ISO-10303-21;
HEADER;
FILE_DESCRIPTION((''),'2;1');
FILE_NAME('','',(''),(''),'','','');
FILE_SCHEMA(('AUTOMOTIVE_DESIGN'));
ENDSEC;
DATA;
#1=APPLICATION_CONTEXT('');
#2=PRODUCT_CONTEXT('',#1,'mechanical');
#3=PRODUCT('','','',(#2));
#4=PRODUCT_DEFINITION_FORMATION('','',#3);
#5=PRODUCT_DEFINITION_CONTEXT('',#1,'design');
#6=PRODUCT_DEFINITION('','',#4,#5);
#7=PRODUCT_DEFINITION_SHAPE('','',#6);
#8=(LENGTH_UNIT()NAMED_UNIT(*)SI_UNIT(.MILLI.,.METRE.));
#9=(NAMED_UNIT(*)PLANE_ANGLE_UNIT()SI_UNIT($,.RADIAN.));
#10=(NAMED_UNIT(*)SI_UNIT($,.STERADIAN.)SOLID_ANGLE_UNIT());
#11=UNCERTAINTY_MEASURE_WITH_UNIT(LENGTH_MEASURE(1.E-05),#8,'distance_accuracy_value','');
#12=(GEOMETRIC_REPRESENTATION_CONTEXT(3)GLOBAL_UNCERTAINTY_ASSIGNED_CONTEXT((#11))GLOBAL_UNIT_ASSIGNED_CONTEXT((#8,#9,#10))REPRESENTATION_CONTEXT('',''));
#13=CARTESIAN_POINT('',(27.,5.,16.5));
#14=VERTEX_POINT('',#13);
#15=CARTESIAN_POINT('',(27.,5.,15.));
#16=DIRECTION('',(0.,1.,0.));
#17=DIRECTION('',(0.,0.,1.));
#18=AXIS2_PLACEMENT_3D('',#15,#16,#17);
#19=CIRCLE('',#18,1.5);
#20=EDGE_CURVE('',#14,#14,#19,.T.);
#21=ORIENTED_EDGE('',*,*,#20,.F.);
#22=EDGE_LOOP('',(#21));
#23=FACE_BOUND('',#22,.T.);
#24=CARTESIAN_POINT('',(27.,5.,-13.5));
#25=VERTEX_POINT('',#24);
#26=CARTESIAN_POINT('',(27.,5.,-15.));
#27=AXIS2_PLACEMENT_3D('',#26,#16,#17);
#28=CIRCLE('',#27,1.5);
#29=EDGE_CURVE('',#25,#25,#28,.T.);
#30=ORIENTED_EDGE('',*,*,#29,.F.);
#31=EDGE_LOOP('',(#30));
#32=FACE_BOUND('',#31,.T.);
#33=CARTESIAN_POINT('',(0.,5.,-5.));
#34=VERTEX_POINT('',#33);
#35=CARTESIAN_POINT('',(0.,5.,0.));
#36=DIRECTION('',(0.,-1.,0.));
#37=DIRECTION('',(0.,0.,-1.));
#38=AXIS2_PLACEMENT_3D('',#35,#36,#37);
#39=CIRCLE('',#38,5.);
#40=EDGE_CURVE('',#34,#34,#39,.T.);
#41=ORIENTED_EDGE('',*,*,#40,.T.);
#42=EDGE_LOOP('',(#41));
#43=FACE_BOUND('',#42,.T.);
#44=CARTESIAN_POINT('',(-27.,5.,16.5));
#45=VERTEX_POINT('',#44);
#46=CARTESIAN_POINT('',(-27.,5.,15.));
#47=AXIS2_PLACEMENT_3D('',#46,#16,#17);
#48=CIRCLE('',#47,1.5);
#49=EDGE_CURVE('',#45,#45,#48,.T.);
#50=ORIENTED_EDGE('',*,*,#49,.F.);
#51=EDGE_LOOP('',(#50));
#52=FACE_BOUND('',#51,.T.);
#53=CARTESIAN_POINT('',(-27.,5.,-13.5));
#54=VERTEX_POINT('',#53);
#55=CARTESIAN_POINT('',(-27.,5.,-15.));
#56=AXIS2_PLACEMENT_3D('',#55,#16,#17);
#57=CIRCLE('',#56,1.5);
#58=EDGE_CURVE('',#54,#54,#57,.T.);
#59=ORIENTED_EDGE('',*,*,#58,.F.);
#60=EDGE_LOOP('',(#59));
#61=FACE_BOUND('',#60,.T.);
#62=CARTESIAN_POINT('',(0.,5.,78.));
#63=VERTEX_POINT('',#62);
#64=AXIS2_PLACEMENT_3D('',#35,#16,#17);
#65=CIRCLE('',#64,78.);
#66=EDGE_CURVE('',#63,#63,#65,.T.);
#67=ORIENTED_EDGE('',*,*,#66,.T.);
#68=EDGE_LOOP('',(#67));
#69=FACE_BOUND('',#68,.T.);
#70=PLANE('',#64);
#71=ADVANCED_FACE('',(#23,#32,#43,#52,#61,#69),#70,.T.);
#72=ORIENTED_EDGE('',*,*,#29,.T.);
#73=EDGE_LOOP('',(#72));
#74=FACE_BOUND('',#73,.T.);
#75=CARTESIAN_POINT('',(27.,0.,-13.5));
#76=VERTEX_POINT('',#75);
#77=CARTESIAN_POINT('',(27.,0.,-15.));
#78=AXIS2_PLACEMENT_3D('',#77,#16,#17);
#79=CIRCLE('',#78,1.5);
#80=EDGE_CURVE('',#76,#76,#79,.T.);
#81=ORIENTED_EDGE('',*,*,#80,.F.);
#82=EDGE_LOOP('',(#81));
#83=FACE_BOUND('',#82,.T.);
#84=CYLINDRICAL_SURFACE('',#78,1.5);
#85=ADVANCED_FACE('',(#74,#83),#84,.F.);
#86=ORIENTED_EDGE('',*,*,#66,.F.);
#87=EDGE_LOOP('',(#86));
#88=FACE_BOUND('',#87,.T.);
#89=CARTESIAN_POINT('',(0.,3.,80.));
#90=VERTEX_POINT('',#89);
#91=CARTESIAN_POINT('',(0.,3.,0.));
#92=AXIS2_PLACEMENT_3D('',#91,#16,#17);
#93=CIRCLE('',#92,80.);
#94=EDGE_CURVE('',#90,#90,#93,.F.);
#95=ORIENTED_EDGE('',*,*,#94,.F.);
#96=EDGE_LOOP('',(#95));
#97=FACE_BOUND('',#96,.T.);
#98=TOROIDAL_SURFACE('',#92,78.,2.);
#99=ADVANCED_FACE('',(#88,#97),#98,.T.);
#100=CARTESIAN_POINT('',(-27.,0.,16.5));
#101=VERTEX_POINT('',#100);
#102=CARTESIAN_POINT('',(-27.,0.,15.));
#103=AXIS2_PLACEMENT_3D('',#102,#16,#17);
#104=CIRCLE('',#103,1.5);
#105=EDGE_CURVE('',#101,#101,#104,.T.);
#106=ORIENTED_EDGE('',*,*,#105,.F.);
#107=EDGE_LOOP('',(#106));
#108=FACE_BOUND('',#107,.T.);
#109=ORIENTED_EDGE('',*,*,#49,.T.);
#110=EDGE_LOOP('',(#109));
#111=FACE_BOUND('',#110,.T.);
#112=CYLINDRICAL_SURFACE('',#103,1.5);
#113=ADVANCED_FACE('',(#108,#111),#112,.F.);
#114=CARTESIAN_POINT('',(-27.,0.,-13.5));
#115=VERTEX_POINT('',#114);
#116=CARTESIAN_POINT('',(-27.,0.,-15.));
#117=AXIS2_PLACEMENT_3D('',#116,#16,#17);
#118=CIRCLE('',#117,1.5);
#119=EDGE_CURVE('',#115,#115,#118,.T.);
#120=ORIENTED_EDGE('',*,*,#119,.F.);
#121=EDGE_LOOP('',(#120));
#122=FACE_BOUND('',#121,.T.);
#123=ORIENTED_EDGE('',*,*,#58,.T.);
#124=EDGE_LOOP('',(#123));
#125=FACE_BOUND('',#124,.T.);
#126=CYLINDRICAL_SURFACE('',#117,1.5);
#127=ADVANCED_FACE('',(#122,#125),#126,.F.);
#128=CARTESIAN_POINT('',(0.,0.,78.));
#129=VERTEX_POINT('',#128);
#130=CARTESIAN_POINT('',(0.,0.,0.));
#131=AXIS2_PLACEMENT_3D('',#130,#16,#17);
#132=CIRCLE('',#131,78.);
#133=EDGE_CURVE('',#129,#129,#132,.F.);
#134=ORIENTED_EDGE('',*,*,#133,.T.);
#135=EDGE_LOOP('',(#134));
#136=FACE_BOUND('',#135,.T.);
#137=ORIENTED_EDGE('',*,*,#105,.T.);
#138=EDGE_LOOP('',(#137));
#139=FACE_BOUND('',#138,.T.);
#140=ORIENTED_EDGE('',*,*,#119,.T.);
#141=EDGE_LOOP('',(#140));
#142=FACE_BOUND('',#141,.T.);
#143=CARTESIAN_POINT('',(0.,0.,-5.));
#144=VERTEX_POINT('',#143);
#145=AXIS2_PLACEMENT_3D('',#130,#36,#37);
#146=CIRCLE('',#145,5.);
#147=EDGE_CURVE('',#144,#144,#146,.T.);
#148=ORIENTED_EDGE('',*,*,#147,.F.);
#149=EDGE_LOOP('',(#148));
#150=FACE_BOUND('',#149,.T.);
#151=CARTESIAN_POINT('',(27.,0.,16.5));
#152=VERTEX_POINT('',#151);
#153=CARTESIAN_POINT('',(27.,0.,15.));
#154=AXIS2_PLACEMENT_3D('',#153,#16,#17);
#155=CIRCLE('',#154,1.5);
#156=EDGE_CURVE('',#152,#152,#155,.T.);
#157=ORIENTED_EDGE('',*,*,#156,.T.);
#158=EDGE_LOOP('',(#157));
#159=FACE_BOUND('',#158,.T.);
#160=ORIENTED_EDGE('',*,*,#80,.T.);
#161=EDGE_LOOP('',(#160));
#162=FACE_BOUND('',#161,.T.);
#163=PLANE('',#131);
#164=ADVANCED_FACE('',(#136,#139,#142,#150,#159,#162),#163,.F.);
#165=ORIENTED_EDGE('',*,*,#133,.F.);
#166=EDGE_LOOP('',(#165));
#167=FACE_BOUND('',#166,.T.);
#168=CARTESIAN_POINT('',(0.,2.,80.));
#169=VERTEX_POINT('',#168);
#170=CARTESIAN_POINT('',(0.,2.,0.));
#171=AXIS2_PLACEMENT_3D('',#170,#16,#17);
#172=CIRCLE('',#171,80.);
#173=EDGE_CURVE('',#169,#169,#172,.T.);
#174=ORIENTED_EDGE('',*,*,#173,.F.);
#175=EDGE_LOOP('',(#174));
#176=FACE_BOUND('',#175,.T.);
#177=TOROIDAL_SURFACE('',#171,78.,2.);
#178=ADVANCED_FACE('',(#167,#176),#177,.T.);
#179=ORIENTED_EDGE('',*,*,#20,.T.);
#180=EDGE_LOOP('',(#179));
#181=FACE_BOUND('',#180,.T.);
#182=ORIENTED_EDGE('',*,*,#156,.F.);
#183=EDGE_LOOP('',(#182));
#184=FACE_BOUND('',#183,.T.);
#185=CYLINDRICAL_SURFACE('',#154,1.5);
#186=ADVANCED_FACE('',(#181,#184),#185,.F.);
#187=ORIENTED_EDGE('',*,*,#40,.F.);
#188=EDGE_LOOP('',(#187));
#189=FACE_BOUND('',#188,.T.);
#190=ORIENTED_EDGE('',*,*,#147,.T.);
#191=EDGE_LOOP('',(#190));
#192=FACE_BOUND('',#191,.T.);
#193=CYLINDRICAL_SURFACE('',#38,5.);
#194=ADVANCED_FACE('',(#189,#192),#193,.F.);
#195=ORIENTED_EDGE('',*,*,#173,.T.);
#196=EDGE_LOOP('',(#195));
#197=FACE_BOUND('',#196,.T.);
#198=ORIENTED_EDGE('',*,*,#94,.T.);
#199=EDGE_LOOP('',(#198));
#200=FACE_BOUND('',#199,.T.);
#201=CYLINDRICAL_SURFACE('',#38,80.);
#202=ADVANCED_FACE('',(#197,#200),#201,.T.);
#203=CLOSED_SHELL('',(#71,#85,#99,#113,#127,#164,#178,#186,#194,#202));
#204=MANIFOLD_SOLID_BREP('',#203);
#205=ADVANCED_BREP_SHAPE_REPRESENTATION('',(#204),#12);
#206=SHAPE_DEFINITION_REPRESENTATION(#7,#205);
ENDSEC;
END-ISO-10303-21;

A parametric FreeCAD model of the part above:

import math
import FreeCAD as App
import Part
import Sketcher

V = App.Vector
Q = App.Units.Quantity


def edges_at(feature, points):
    """Names of the edges that pass closest to the given points."""
    edges = feature.Shape.Edges
    near = lambda p: min(range(len(edges)), key=lambda i: edges[i].distToShape(Part.Vertex(*p))[0])
    return sorted({f"Edge{near(p) + 1}" for p in points})

doc = App.newDocument("Part")
body = doc.addObject("PartDesign::Body", "Body")

# Sketch on XZ plane
sketch1 = body.newObject("Sketcher::SketchObject", "Sketch")
sketch1.AttachmentSupport = (doc.getObject("XZ_Plane"), [""])
sketch1.MapMode = "FlatFace"
sketch1.addGeometry(Part.Circle(V(0, 0, 0), V(0, 0, 1), 80), False)
sketch1.addConstraint(Sketcher.Constraint("Coincident", 0, 3, -1, 1))
sketch1.addConstraint(Sketcher.Constraint("Diameter", 0, Q("160 mm")))
pad1 = body.newObject("PartDesign::Pad", "Pad")
pad1.Profile = sketch1
pad1.Length = 5
pad1.Reversed = True
doc.recompute()

fillet = body.newObject("PartDesign::Fillet", "Fillet")
fillet.Base = (pad1, edges_at(pad1, [(-80, 0, 0), (-80, 5, 0)]))
fillet.Radius = 2

# Sketch on XZ plane
sketch2 = body.newObject("Sketcher::SketchObject", "Sketch001")
sketch2.AttachmentSupport = (doc.getObject("XZ_Plane"), [""])
sketch2.MapMode = "FlatFace"
sketch2.addGeometry(Part.Circle(V(0, 0, 0), V(0, 0, 1), 5), False)
sketch2.addConstraint(Sketcher.Constraint("Coincident", 0, 3, -1, 1))
sketch2.addConstraint(Sketcher.Constraint("Diameter", 0, Q("10 mm")))
pocket1 = body.newObject("PartDesign::Pocket", "Pocket")
pocket1.Profile = sketch2
pocket1.Length = 5

# Sketch on XZ plane
sketch3 = body.newObject("Sketcher::SketchObject", "Sketch002")
sketch3.AttachmentSupport = (doc.getObject("XZ_Plane"), [""])
sketch3.MapMode = "FlatFace"
sketch3.AttachmentOffset = App.Placement(V(0, 0, -5), App.Rotation())
sketch3.addGeometry(Part.ArcOfCircle(Part.Circle(V(-27, -15, 0), V(0, 0, 1), 1.5), math.radians(90), math.radians(360)), False)
sketch3.addGeometry(Part.ArcOfCircle(Part.Circle(V(-27, -15, 0), V(0, 0, 1), 1.5), math.radians(0), math.radians(90)), False)
sketch3.addGeometry(Part.ArcOfCircle(Part.Circle(V(-27, 15, 0), V(0, 0, 1), 1.5), math.radians(-90), math.radians(0)), False)
sketch3.addGeometry(Part.ArcOfCircle(Part.Circle(V(-27, 15, 0), V(0, 0, 1), 1.5), math.radians(0), math.radians(270)), False)
sketch3.addGeometry(Part.ArcOfCircle(Part.Circle(V(27, 15, 0), V(0, 0, 1), 1.5), math.radians(-90), math.radians(0)), False)
sketch3.addGeometry(Part.ArcOfCircle(Part.Circle(V(27, 15, 0), V(0, 0, 1), 1.5), math.radians(180), math.radians(270)), False)
sketch3.addGeometry(Part.ArcOfCircle(Part.Circle(V(27, 15, 0), V(0, 0, 1), 1.5), math.radians(0), math.radians(180)), False)
sketch3.addGeometry(Part.ArcOfCircle(Part.Circle(V(27, -15, 0), V(0, 0, 1), 1.5), math.radians(180), math.radians(360)), False)
sketch3.addGeometry(Part.ArcOfCircle(Part.Circle(V(27, -15, 0), V(0, 0, 1), 1.5), math.radians(90), math.radians(180)), False)
sketch3.addGeometry(Part.ArcOfCircle(Part.Circle(V(27, -15, 0), V(0, 0, 1), 1.5), math.radians(0), math.radians(90)), False)
sketch3.addConstraint(Sketcher.Constraint("Tangent", 0, 1, 1, 2))
sketch3.addConstraint(Sketcher.Constraint("Coincident", 1, 1, 0, 2))
sketch3.addConstraint(Sketcher.Constraint("Tangent", 2, 1, 3, 2))
sketch3.addConstraint(Sketcher.Constraint("Coincident", 3, 1, 2, 2))
sketch3.addConstraint(Sketcher.Constraint("Tangent", 4, 1, 5, 2))
sketch3.addConstraint(Sketcher.Constraint("Tangent", 5, 1, 6, 2))
sketch3.addConstraint(Sketcher.Constraint("Tangent", 6, 1, 4, 2))
sketch3.addConstraint(Sketcher.Constraint("Tangent", 7, 1, 8, 2))
sketch3.addConstraint(Sketcher.Constraint("Tangent", 8, 1, 9, 2))
sketch3.addConstraint(Sketcher.Constraint("Tangent", 9, 1, 7, 2))
sketch3.addConstraint(Sketcher.Constraint("Equal", 1, 2))
sketch3.addConstraint(Sketcher.Constraint("Equal", 3, 4))
sketch3.addConstraint(Sketcher.Constraint("Equal", 6, 7))
sketch3.addConstraint(Sketcher.Constraint("Symmetric", 0, 3, 4, 3, -1, 1))
sketch3.addConstraint(Sketcher.Constraint("Symmetric", 2, 3, 7, 3, -1, 1))
sketch3.addConstraint(Sketcher.Constraint("Symmetric", 2, 3, 4, 3, -2))
sketch3.addConstraint(Sketcher.Constraint("Horizontal", 9, 3, 1, 1))
sketch3.addConstraint(Sketcher.Constraint("Horizontal", 6, 3, 3, 1))
sketch3.addConstraint(Sketcher.Constraint("Horizontal", 3, 1, 5, 1))
sketch3.addConstraint(Sketcher.Constraint("Horizontal", 5, 1, 6, 1))
sketch3.addConstraint(Sketcher.Constraint("Horizontal", 1, 1, 7, 1))
sketch3.addConstraint(Sketcher.Constraint("Horizontal", 7, 1, 9, 1))
sketch3.addConstraint(Sketcher.Constraint("Vertical", 3, 3, 0, 1))
sketch3.addConstraint(Sketcher.Constraint("Vertical", 0, 1, 2, 1))
sketch3.addConstraint(Sketcher.Constraint("Vertical", 9, 3, 4, 1))
sketch3.addConstraint(Sketcher.Constraint("Vertical", 4, 1, 8, 1))
sketch3.addConstraint(Sketcher.Constraint("Radius", 0, Q("1.5 mm")))
sketch3.addConstraint(Sketcher.Constraint("DistanceX", 0, 3, -1, 1, Q("27 mm")))
sketch3.addConstraint(Sketcher.Constraint("DistanceY", 0, 3, -1, 1, Q("15 mm")))
pocket2 = body.newObject("PartDesign::Pocket", "Pocket001")
pocket2.Profile = sketch3
pocket2.Type = "ThroughAll"
pocket2.Reversed = True

doc.recompute()
